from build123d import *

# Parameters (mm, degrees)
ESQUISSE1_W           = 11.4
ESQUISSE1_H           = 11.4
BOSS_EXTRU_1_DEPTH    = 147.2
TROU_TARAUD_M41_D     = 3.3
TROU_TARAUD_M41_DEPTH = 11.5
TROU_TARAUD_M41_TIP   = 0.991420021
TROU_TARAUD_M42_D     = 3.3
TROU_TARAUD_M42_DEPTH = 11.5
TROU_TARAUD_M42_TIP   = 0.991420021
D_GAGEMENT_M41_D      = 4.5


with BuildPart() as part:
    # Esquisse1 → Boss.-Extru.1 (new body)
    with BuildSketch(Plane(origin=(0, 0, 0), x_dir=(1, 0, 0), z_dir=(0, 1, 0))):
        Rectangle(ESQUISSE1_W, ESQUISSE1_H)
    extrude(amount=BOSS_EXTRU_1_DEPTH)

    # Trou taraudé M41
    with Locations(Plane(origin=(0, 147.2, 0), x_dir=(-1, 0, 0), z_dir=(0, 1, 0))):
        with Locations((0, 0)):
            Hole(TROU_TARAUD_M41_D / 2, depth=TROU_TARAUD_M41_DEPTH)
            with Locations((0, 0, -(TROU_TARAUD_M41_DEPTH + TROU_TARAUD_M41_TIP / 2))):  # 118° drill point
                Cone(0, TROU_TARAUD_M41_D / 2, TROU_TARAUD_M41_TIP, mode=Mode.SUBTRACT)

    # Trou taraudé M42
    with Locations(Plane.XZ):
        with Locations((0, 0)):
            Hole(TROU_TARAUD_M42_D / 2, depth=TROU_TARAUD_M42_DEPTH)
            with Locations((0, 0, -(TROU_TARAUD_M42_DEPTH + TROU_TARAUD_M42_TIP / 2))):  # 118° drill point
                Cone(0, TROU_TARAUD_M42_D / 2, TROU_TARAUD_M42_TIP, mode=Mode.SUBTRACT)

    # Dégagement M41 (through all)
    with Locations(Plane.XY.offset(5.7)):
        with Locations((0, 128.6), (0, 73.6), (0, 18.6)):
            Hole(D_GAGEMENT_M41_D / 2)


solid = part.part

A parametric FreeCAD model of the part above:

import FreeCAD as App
import Part
import Sketcher
from FreeCAD import Vector
Q = App.Units.Quantity


def add_polygon(sketch, points):
    """Adds a closed chain of lines whose ends are joined by coincident constraints."""
    first, n = sketch.GeometryCount, len(points)
    for a, b in zip(points, points[1:] + points[:1]):
        sketch.addGeometry(Part.LineSegment(App.Vector(*a, 0), App.Vector(*b, 0)), False)
    for i in range(n):
        sketch.addConstraint(Sketcher.Constraint("Coincident", first + i, 2, first + (i + 1) % n, 1))

doc = App.newDocument("Part")
params = doc.addObject("Spreadsheet::Sheet", "Params")
for row, (alias, value) in enumerate([
    ("sketch1_width", "11.4 mm"),
    ("pad1_length", "147.2 mm"),
    ("sketch2_diameter", "3.3 mm"),
    ("hole_diameter", "3.3 mm"),
    ("hole_depth", "11.5 mm"),
    ("sketch3_diameter", "3.3 mm"),
    ("hole2_diameter", "3.3 mm"),
    ("hole2_depth", "11.5 mm"),
    ("sketch4_diameter", "4.5 mm"),
    ("hole3_diameter", "4.5 mm"),
], start=1):
    params.set(f"A{row}", alias)
    params.set(f"B{row}", "=" + value)
    params.setAlias(f"B{row}", alias)

body = doc.addObject("PartDesign::Body", "Body")

# Sketch on XZ plane
sketch1 = body.newObject("Sketcher::SketchObject", "Sketch")
sketch1.AttachmentSupport = (doc.getObject("XZ_Plane"), [""])
sketch1.MapMode = "FlatFace"
add_polygon(sketch1, [(-5.7, -5.7), (-5.7, 5.7), (5.7, 5.7), (5.7, -5.7)])  # lines 0-3
sketch1.addConstraint(Sketcher.Constraint("Vertical", 0))
sketch1.addConstraint(Sketcher.Constraint("Horizontal", 1))
sketch1.addConstraint(Sketcher.Constraint("Vertical", 2))
sketch1.addConstraint(Sketcher.Constraint("Horizontal", 3))
sketch1.addConstraint(Sketcher.Constraint("Symmetric", 0, 2, 2, 2, -1, 1))
sketch1.addConstraint(Sketcher.Constraint("Equal", 3, 0))
sketch1.addConstraint(Sketcher.Constraint("DistanceX", 1, 1, 1, 2, Q("11.4 mm")))
sketch1.setExpression("Constraints[10]", "Params.sketch1_width")
pad1 = body.newObject("PartDesign::Pad", "Pad")
pad1.Profile = sketch1
pad1.setExpression("Length", "Params.pad1_length")
pad1.Reversed = True

# Sketch on XZ plane
sketch2 = body.newObject("Sketcher::SketchObject", "Sketch001")
sketch2.AttachmentSupport = (doc.getObject("XZ_Plane"), [""])
sketch2.MapMode = "FlatFace"
sketch2.AttachmentOffset = App.Placement(Vector(0, 0, -147.2), App.Rotation())
sketch2.addGeometry(Part.Circle(Vector(0, 0, 0), Vector(0, 0, 1), 1.65), False)
sketch2.addConstraint(Sketcher.Constraint("Coincident", 0, 3, -1, 1))
sketch2.addConstraint(Sketcher.Constraint("Diameter", 0, Q("3.3 mm")))
sketch2.setExpression("Constraints[1]", "Params.sketch2_diameter")
doc.recompute()
hole = body.newObject("PartDesign::Hole", "Hole")
hole.Profile = sketch2
hole.ThreadType = "None"
hole.setExpression("Diameter", "Params.hole_diameter")
hole.DepthType = "Dimension"
hole.setExpression("Depth", "Params.hole_depth")
hole.DrillPoint = "Angled"
hole.DrillPointAngle = 118
hole.Reversed = True

# Sketch on XZ plane
sketch3 = body.newObject("Sketcher::SketchObject", "Sketch002")
sketch3.AttachmentSupport = (doc.getObject("XZ_Plane"), [""])
sketch3.MapMode = "FlatFace"
sketch3.addGeometry(Part.Circle(Vector(0, 0, 0), Vector(0, 0, 1), 1.65), False)
sketch3.addConstraint(Sketcher.Constraint("Coincident", 0, 3, -1, 1))
sketch3.addConstraint(Sketcher.Constraint("Diameter", 0, Q("3.3 mm")))
sketch3.setExpression("Constraints[1]", "Params.sketch3_diameter")
doc.recompute()
hole2 = body.newObject("PartDesign::Hole", "Hole001")
hole2.Profile = sketch3
hole2.ThreadType = "None"
hole2.setExpression("Diameter", "Params.hole2_diameter")
hole2.DepthType = "Dimension"
hole2.setExpression("Depth", "Params.hole2_depth")
hole2.DrillPoint = "Angled"
hole2.DrillPointAngle = 118

# Sketch on XY plane
sketch4 = body.newObject("Sketcher::SketchObject", "Sketch003")
sketch4.AttachmentSupport = (doc.getObject("XY_Plane"), [""])
sketch4.MapMode = "FlatFace"
sketch4.AttachmentOffset = App.Placement(Vector(0, 0, 5.7), App.Rotation())
sketch4.addGeometry(Part.Circle(Vector(0, 128.6, 0), Vector(0, 0, 1), 2.25), False)
sketch4.addGeometry(Part.Circle(Vector(0, 73.6, 0), Vector(0, 0, 1), 2.25), False)
sketch4.addGeometry(Part.Circle(Vector(0, 18.6, 0), Vector(0, 0, 1), 2.25), False)
sketch4.addConstraint(Sketcher.Constraint("Equal", 0, 1))
sketch4.addConstraint(Sketcher.Constraint("Equal", 1, 2))
sketch4.addConstraint(Sketcher.Constraint("PointOnObject", 0, 3, -2))
sketch4.addConstraint(Sketcher.Constraint("PointOnObject", 1, 3, -2))
sketch4.addConstraint(Sketcher.Constraint("PointOnObject", 2, 3, -2))
sketch4.addConstraint(Sketcher.Constraint("Diameter", 0, Q("4.5 mm")))
sketch4.addConstraint(Sketcher.Constraint("DistanceY", 1, 3, 0, 3, Q("55 mm")))
sketch4.addConstraint(Sketcher.Constraint("DistanceY", 2, 3, 1, 3, Q("55 mm")))
sketch4.addConstraint(Sketcher.Constraint("DistanceY", -1, 1, 0, 3, Q("128.6 mm")))
sketch4.setExpression("Constraints[5]", "Params.sketch4_diameter")
doc.recompute()
hole3 = body.newObject("PartDesign::Hole", "Hole002")
hole3.Profile = sketch4
hole3.ThreadType = "None"
hole3.setExpression("Diameter", "Params.hole3_diameter")
hole3.DepthType = "ThroughAll"

doc.recompute()
